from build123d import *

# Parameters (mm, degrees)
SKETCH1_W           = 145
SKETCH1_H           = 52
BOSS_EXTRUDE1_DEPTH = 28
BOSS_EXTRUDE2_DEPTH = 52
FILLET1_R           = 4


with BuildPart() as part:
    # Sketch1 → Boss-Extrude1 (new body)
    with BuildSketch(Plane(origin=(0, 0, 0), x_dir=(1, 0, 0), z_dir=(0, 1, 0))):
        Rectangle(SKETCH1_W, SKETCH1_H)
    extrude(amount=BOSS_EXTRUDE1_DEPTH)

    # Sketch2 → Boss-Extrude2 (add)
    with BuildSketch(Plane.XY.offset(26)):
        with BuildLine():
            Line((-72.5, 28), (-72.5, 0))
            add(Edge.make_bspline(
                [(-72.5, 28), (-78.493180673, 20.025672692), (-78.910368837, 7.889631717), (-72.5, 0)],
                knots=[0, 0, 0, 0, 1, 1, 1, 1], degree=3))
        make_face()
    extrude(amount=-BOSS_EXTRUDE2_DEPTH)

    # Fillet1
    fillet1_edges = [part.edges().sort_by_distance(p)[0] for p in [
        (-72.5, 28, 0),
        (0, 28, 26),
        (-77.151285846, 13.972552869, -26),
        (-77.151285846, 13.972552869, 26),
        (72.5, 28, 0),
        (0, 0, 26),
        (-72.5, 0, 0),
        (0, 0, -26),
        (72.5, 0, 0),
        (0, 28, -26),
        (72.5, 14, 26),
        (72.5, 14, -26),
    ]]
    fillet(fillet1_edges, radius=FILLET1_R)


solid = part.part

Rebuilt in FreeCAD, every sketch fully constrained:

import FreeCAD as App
import Part
import Sketcher
from FreeCAD import Vector
Q = App.Units.Quantity

doc = App.newDocument("Part")
body = doc.addObject("PartDesign::Body", "Body")

sketch1 = doc.addObject("Sketcher::SketchObject", "Sketch")
body.addObject(sketch1)
sketch1.AttachmentSupport = (doc.XZ_Plane, [""])
sketch1.MapMode = "FlatFace"
sketch1.addGeometry([
    Part.LineSegment(Vector(-72, -26, 0), Vector(-72, 26, 0)),
    Part.LineSegment(Vector(-72, 26, 0), Vector(72, 26, 0)),
    Part.LineSegment(Vector(72, 26, 0), Vector(72, -26, 0)),
    Part.LineSegment(Vector(72, -26, 0), Vector(-72, -26, 0)),
], False)
sketch1.addConstraint([
    Sketcher.Constraint("Coincident", 0, 2, 1, 1),
    Sketcher.Constraint("Coincident", 1, 2, 2, 1),
    Sketcher.Constraint("Coincident", 2, 2, 3, 1),
    Sketcher.Constraint("Coincident", 3, 2, 0, 1),
    Sketcher.Constraint("Vertical", 0),
    Sketcher.Constraint("Horizontal", 1),
    Sketcher.Constraint("Vertical", 2),
    Sketcher.Constraint("Horizontal", 3),
    Sketcher.Constraint("Symmetric", 0, 2, 2, 2, -1, 1),
    Sketcher.Constraint("DistanceX", 1, 1, 1, 2, Q("145 mm")),
    Sketcher.Constraint("DistanceY", 0, 1, 0, 2, Q("52 mm")),
])
pad1 = doc.addObject("PartDesign::Pad", "Pad")
body.addObject(pad1)
pad1.Profile = sketch1
pad1.Length = 28
pad1.Reversed = True

sketch2 = doc.addObject("Sketcher::SketchObject", "Sketch001")
body.addObject(sketch2)
sketch2.AttachmentSupport = (doc.XY_Plane, [""])
sketch2.MapMode = "FlatFace"
sketch2.AttachmentOffset = App.Placement(Vector(0, 0, 26), App.Rotation())
sketch2.addGeometry([
    Part.LineSegment(Vector(-72.5, 0, 0), Vector(-72.5, 28, 0)),
    Part.BSplineCurve([Vector(-72.5, 28, 0), Vector(-78.493181, 20.025673, 0), Vector(-78.910369, 7.889632, 0), Vector(-72.5, 0, 0)], [4, 4], [0, 1], False, 3, [1, 1, 1, 1], False),
], False)
sketch2.addConstraint([
    Sketcher.Constraint("Block", 1),
    Sketcher.Constraint("Coincident", 0, 1, 1, 2),
    Sketcher.Constraint("Coincident", 1, 1, 0, 2),
])
pad2 = doc.addObject("PartDesign::Pad", "Pad001")
body.addObject(pad2)
pad2.Profile = sketch2
pad2.Length = 52
pad2.Reversed = True
doc.recompute()

fillet = doc.addObject("PartDesign::Fillet", "Fillet")
body.addObject(fillet)
fillet.Base = (pad2, ["Edge1"])
fillet.UseAllEdges = True
fillet.Radius = 4

doc.recompute()
